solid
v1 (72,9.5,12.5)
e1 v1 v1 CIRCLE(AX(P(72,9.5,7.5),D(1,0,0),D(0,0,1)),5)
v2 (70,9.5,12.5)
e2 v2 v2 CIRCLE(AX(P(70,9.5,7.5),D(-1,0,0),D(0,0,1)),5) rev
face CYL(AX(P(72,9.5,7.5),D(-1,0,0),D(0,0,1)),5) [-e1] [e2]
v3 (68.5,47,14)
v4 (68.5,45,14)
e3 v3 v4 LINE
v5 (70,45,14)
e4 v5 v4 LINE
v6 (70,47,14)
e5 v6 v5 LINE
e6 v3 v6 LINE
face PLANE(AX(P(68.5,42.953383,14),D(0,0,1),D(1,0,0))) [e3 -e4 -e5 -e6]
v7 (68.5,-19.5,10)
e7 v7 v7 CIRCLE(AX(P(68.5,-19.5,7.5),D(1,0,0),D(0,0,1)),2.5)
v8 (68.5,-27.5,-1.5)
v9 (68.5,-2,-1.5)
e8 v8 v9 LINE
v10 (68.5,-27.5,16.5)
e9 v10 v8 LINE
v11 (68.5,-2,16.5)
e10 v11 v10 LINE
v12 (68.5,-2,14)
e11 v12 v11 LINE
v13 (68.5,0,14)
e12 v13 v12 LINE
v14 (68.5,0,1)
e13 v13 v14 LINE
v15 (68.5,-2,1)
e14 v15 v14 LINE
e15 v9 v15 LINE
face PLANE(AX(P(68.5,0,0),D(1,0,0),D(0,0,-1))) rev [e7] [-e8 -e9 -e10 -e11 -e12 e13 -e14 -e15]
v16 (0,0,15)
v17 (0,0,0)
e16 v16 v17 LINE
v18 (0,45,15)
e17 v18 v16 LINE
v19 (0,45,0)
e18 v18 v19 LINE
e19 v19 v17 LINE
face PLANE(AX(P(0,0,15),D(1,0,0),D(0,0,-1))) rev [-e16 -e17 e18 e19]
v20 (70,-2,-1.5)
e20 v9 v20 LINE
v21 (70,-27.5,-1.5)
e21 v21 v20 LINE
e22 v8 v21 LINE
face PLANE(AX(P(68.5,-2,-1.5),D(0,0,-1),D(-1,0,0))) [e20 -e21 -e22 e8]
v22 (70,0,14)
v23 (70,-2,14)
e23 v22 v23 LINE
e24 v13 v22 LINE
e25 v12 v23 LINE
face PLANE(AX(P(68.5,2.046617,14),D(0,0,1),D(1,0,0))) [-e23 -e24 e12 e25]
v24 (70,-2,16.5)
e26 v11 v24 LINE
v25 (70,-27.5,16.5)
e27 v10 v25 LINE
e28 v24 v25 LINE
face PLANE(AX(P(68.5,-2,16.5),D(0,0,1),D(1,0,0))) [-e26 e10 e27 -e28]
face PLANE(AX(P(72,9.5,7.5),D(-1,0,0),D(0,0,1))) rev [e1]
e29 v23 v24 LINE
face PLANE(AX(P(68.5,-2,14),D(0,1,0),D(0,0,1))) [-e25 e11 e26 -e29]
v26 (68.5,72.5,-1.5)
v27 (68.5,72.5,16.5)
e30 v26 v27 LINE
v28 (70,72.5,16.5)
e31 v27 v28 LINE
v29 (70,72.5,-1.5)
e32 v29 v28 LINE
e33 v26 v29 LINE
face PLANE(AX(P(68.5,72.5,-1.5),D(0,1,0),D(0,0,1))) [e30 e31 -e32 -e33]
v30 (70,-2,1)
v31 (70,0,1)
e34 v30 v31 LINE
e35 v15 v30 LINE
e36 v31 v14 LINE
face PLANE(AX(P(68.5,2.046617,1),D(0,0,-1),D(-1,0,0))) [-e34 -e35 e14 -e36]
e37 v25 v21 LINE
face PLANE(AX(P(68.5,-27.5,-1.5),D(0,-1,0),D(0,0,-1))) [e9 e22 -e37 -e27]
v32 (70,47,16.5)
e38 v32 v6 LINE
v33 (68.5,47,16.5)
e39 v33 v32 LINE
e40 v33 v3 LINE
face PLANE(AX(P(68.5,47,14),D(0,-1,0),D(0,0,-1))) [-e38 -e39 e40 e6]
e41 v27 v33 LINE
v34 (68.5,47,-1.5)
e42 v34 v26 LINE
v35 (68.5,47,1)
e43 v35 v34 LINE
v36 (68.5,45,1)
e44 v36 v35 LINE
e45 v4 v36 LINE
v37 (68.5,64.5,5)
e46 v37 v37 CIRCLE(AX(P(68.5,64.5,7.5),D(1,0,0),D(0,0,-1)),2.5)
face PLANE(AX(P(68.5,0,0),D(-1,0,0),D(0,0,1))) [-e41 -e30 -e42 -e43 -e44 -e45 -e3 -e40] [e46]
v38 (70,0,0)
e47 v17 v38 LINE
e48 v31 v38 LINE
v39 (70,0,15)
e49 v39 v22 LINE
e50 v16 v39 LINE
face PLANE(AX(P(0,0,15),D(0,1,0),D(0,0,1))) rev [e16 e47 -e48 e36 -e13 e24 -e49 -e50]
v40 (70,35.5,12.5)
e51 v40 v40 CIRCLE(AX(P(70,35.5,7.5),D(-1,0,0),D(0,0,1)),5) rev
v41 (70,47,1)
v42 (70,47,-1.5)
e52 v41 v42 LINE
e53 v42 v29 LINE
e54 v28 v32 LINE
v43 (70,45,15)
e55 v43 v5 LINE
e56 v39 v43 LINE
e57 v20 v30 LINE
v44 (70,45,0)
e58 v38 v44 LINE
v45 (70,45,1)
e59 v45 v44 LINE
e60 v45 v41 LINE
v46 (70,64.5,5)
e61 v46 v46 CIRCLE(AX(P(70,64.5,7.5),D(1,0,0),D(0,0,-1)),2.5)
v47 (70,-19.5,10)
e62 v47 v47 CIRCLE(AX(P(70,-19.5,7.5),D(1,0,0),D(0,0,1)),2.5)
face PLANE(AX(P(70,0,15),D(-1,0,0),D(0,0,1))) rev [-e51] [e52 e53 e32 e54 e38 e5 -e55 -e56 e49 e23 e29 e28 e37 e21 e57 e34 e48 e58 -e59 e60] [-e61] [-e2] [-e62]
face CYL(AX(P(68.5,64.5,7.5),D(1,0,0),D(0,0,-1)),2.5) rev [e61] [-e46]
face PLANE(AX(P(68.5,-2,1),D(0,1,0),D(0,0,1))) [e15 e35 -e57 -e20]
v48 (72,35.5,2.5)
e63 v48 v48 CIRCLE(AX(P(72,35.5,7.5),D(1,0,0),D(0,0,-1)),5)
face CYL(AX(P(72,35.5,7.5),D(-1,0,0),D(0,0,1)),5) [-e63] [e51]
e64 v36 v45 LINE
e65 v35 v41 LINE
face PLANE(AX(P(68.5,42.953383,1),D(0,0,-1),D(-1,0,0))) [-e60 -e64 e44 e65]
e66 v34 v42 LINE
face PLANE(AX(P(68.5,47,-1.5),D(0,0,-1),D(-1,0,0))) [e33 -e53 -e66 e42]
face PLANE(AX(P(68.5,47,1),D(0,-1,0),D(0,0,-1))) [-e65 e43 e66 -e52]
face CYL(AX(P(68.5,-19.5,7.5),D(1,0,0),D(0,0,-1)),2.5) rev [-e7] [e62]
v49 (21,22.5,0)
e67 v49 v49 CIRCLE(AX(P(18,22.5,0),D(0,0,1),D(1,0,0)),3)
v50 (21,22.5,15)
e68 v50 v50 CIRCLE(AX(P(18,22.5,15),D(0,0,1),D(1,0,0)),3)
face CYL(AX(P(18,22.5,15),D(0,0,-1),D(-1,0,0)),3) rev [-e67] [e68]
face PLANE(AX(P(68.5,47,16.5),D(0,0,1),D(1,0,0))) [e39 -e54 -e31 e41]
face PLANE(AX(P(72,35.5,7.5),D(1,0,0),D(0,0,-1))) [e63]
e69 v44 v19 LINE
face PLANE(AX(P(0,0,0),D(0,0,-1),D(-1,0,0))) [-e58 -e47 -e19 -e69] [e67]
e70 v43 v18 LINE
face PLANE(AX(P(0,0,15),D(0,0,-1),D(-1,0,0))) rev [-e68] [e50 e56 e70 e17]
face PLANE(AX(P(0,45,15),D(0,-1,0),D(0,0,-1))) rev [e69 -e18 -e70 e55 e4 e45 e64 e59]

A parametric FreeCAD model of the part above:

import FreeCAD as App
import Part
import Sketcher

V = App.Vector
Q = App.Units.Quantity


def add_polygon(sketch, points):
    """Adds a closed chain of lines whose ends are joined by coincident constraints."""
    first, n = sketch.GeometryCount, len(points)
    for a, b in zip(points, points[1:] + points[:1]):
        sketch.addGeometry(Part.LineSegment(App.Vector(*a, 0), App.Vector(*b, 0)), False)
    for i in range(n):
        sketch.addConstraint(Sketcher.Constraint("Coincident", first + i, 2, first + (i + 1) % n, 1))

doc = App.newDocument("Part")
body = doc.addObject("PartDesign::Body", "Body")

# Sketch on XY plane
sketch1 = body.newObject("Sketcher::SketchObject", "Sketch")
sketch1.AttachmentSupport = (doc.getObject("XY_Plane"), [""])
sketch1.MapMode = "FlatFace"
add_polygon(sketch1, [(0, 45), (0, 0), (70, 0), (70, 45)])  # lines 0-3
sketch1.addGeometry(Part.Circle(V(18, 22.5, 0), V(0, 0, 1), 3), False)  # 4
sketch1.addConstraint(Sketcher.Constraint("Vertical", 0))
sketch1.addConstraint(Sketcher.Constraint("Horizontal", 1))
sketch1.addConstraint(Sketcher.Constraint("Vertical", 2))
sketch1.addConstraint(Sketcher.Constraint("Horizontal", 3))
sketch1.addConstraint(Sketcher.Constraint("Coincident", 0, 2, -1, 1))
sketch1.addConstraint(Sketcher.Constraint("Diameter", 4, Q("6 mm")))
sketch1.addConstraint(Sketcher.Constraint("DistanceX", 1, 1, 1, 2, Q("70 mm")))
sketch1.addConstraint(Sketcher.Constraint("DistanceY", 0, 2, 0, 1, Q("45 mm")))
sketch1.addConstraint(Sketcher.Constraint("DistanceX", -1, 1, 4, 3, Q("18 mm")))
sketch1.addConstraint(Sketcher.Constraint("DistanceY", -1, 1, 4, 3, Q("22.5 mm")))
pad1 = body.newObject("PartDesign::Pad", "Pad")
pad1.Profile = sketch1
pad1.Length = 15

# Sketch on YZ plane
sketch2 = body.newObject("Sketcher::SketchObject", "Sketch001")
sketch2.AttachmentSupport = (doc.getObject("YZ_Plane"), [""])
sketch2.MapMode = "FlatFace"
sketch2.AttachmentOffset = App.Placement(V(0, 0, 70), App.Rotation())
add_polygon(sketch2, [(43, 1), (47, 1), (47, -1.5), (72.5, -1.5), (72.5, 16.5), (47, 16.5), (47, 14), (43, 14)])  # lines 0-7
sketch2.addGeometry(Part.Circle(V(64.5, 7.5, 0), V(0, 0, 1), 2.5), False)  # 8
add_polygon(sketch2, [(2, 14), (-2, 14), (-2, 16.5), (-27.5, 16.5), (-27.5, -1.5), (-2, -1.5), (-2, 1), (2, 1)])  # lines 9-16
sketch2.addGeometry(Part.Circle(V(-19.5, 7.5, 0), V(0, 0, 1), 2.5), False)  # 17
sketch2.addConstraint(Sketcher.Constraint("Horizontal", 0))
sketch2.addConstraint(Sketcher.Constraint("Vertical", 1))
sketch2.addConstraint(Sketcher.Constraint("Horizontal", 2))
sketch2.addConstraint(Sketcher.Constraint("Vertical", 3))
sketch2.addConstraint(Sketcher.Constraint("Horizontal", 4))
sketch2.addConstraint(Sketcher.Constraint("Vertical", 5))
sketch2.addConstraint(Sketcher.Constraint("Horizontal", 6))
sketch2.addConstraint(Sketcher.Constraint("Vertical", 7))
sketch2.addConstraint(Sketcher.Constraint("Horizontal", 9))
sketch2.addConstraint(Sketcher.Constraint("Vertical", 10))
sketch2.addConstraint(Sketcher.Constraint("Horizontal", 11))
sketch2.addConstraint(Sketcher.Constraint("Vertical", 12))
sketch2.addConstraint(Sketcher.Constraint("Horizontal", 13))
sketch2.addConstraint(Sketcher.Constraint("Vertical", 14))
sketch2.addConstraint(Sketcher.Constraint("Horizontal", 15))
sketch2.addConstraint(Sketcher.Constraint("Vertical", 16))
sketch2.addConstraint(Sketcher.Constraint("Equal", 8, 17))
sketch2.addConstraint(Sketcher.Constraint("Horizontal", 8, 3, 17, 3))
sketch2.addConstraint(Sketcher.Constraint("Horizontal", 6, 2, 9, 2))
sketch2.addConstraint(Sketcher.Constraint("Horizontal", 4, 2, 10, 2))
sketch2.addConstraint(Sketcher.Constraint("Horizontal", 2, 2, 12, 2))
sketch2.addConstraint(Sketcher.Constraint("Horizontal", 7, 2, 14, 2))
sketch2.addConstraint(Sketcher.Constraint("Vertical", 1, 2, 4, 2))
sketch2.addConstraint(Sketcher.Constraint("Vertical", 10, 2, 13, 2))
sketch2.addConstraint(Sketcher.Constraint("Equal", 6, 9))
sketch2.addConstraint(Sketcher.Constraint("Equal", 4, 11))
sketch2.addConstraint(Sketcher.Constraint("Equal", 1, 5))
sketch2.addConstraint(Sketcher.Constraint("Diameter", 8, Q("5 mm")))
sketch2.addConstraint(Sketcher.Constraint("DistanceY", 3, 1, 3, 2, Q("18 mm")))
sketch2.addConstraint(Sketcher.Constraint("DistanceY", 7, 2, 7, 1, Q("13 mm")))
sketch2.addConstraint(Sketcher.Constraint("DistanceX", 2, 1, 2, 2, Q("25.5 mm")))
sketch2.addConstraint(Sketcher.Constraint("DistanceX", -1, 1, 0, 2, Q("47 mm")))
sketch2.addConstraint(Sketcher.Constraint("DistanceY", -1, 1, 0, 2, Q("1 mm")))
sketch2.addConstraint(Sketcher.Constraint("DistanceX", 9, 2, -1, 1, Q("2 mm")))
sketch2.addConstraint(Sketcher.Constraint("DistanceX", 17, 3, 8, 3, Q("84 mm")))
sketch2.addConstraint(Sketcher.Constraint("DistanceY", 1, 2, 8, 3, Q("9 mm")))
sketch2.addConstraint(Sketcher.Constraint("DistanceX", 8, 3, 2, 2, Q("8 mm")))
sketch2.addConstraint(Sketcher.Constraint("DistanceX", 0, 1, 0, 2, Q("4.046617 mm")))
pad2 = body.newObject("PartDesign::Pad", "Pad001")
pad2.Profile = sketch2
pad2.Length = 1.5
pad2.Reversed = True

# Sketch on YZ plane
sketch3 = body.newObject("Sketcher::SketchObject", "Sketch002")
sketch3.AttachmentSupport = (doc.getObject("YZ_Plane"), [""])
sketch3.MapMode = "FlatFace"
sketch3.AttachmentOffset = App.Placement(V(0, 0, 70), App.Rotation())
sketch3.addGeometry(Part.Circle(V(36, 8, 0), V(0, 0, 1), 5), False)
sketch3.addGeometry(Part.Circle(V(10, 8, 0), V(0, 0, 1), 5), False)
sketch3.addConstraint(Sketcher.Constraint("Equal", 0, 1))
sketch3.addConstraint(Sketcher.Constraint("Horizontal", 0, 3, 1, 3))
sketch3.addConstraint(Sketcher.Constraint("Diameter", 0, Q("10 mm")))
sketch3.addConstraint(Sketcher.Constraint("DistanceX", 1, 3, 0, 3, Q("26 mm")))
sketch3.addConstraint(Sketcher.Constraint("DistanceX", -1, 1, 0, 3, Q("35.5 mm")))
sketch3.addConstraint(Sketcher.Constraint("DistanceY", -1, 1, 0, 3, Q("7.5 mm")))
pad3 = body.newObject("PartDesign::Pad", "Pad002")
pad3.Profile = sketch3
pad3.Length = 2

doc.recompute()
